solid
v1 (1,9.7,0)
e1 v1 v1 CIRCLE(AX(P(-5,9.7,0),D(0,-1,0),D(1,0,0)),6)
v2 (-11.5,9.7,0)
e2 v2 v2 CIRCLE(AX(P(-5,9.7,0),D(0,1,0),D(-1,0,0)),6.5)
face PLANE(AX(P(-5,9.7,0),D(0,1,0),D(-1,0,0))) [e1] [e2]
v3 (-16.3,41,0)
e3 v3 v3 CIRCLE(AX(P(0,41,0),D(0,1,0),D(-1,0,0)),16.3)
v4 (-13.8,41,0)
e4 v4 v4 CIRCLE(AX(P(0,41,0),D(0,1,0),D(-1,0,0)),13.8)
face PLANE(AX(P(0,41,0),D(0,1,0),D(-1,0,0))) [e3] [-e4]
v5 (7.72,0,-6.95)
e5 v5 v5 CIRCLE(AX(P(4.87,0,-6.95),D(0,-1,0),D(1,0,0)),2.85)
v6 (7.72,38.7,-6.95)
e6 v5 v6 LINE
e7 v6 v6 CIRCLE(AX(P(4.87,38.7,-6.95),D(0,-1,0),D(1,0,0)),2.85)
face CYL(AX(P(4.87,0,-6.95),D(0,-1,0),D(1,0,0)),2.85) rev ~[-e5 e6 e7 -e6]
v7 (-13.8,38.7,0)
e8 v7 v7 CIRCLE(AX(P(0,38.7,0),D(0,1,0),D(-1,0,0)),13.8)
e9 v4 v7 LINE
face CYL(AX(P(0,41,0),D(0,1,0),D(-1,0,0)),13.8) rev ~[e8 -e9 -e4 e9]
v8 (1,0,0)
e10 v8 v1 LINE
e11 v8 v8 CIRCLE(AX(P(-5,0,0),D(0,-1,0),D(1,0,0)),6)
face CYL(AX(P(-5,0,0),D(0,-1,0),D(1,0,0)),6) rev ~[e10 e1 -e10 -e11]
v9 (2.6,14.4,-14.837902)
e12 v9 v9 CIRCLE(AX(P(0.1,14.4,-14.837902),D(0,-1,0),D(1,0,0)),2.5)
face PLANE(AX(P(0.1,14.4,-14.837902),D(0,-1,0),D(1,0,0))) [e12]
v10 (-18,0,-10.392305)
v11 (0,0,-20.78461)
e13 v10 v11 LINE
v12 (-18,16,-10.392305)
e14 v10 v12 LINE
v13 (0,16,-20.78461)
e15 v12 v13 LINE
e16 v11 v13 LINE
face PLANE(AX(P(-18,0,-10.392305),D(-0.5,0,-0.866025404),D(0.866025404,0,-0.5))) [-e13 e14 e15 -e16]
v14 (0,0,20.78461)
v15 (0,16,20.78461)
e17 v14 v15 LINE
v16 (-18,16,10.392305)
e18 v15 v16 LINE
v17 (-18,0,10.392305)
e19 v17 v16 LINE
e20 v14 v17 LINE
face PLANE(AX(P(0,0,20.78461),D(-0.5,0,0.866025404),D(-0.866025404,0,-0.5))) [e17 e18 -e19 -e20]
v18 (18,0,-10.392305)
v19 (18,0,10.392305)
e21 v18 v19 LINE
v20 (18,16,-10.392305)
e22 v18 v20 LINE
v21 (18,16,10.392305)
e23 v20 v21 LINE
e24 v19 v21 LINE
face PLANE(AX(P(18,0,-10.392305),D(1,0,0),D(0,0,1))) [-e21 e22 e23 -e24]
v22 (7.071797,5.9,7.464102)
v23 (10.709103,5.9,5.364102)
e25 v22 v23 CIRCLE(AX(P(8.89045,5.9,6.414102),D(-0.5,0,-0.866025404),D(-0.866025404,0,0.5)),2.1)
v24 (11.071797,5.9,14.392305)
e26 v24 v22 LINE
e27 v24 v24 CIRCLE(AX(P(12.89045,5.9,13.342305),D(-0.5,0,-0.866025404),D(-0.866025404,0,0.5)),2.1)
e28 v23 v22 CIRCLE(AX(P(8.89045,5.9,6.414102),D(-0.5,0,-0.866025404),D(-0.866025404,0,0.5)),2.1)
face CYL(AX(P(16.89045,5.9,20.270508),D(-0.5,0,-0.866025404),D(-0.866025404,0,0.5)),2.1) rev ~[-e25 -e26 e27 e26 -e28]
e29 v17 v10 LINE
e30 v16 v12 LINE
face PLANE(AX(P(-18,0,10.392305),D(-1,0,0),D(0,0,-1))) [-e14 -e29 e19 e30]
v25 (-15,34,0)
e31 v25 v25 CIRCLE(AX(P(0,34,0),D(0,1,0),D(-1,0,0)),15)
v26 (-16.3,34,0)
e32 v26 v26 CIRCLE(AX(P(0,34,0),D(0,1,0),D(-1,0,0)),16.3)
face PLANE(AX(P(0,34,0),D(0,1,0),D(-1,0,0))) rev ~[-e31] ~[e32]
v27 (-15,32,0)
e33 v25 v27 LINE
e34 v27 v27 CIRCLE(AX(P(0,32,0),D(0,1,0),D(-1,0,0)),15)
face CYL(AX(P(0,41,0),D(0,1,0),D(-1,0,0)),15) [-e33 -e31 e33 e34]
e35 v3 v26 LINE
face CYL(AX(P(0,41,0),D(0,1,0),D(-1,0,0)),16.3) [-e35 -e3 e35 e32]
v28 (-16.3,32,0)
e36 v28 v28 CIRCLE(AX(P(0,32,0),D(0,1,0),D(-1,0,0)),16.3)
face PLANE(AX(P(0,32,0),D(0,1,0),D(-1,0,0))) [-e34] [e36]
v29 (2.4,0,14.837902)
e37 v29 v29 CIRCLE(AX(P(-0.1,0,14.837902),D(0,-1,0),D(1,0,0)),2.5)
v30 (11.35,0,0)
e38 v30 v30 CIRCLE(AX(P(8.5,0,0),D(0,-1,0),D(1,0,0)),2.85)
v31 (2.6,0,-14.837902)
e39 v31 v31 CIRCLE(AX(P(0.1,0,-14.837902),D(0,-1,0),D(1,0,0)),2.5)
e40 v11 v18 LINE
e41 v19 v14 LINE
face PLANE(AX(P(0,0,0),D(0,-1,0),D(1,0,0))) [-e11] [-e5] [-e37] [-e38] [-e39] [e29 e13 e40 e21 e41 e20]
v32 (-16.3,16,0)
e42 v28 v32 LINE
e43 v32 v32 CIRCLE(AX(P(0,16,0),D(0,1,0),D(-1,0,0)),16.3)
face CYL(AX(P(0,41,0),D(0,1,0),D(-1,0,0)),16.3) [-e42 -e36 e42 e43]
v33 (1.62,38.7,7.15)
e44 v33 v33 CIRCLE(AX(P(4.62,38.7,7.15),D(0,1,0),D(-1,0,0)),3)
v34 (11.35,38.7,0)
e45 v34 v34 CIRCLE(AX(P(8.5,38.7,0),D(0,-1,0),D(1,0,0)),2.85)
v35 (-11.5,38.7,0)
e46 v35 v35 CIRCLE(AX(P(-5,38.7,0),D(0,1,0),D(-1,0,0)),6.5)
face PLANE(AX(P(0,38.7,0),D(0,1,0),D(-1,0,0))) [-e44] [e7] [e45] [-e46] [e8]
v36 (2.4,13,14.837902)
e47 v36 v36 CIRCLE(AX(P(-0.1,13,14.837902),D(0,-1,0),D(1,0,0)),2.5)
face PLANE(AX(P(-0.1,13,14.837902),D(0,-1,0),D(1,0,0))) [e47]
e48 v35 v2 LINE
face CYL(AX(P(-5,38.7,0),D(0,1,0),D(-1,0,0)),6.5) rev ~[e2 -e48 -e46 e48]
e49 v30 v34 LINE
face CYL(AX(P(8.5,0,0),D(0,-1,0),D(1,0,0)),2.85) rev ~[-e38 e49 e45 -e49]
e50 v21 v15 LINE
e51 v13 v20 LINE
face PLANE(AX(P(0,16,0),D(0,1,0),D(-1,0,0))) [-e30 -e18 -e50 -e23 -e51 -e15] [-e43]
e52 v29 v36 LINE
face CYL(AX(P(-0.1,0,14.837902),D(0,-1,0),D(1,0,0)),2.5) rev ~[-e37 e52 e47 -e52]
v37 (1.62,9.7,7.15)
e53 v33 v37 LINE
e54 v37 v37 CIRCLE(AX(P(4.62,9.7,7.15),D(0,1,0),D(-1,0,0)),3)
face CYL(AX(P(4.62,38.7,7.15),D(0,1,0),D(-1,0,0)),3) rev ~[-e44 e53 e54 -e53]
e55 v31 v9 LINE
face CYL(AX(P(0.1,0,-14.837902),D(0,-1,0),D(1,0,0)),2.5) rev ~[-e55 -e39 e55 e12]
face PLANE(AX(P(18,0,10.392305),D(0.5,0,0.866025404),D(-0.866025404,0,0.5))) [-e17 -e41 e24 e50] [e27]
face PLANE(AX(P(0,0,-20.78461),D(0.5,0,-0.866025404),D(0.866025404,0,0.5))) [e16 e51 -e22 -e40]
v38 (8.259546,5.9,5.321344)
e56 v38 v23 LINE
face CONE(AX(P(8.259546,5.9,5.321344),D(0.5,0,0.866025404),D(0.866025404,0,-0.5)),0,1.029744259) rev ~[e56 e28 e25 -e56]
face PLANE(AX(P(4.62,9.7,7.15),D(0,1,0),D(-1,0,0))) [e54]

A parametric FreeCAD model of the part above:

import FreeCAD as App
import Part
import Sketcher

V = App.Vector
Q = App.Units.Quantity

doc = App.newDocument("Part")
body = doc.addObject("PartDesign::Body", "Body")

# Sketch on XZ plane
sketch1 = body.newObject("Sketcher::SketchObject", "Sketch")
sketch1.AttachmentSupport = (doc.getObject("XZ_Plane"), [""])
sketch1.MapMode = "FlatFace"
sketch1.addGeometry(Part.LineSegment(V(-18, -10.392305, 0), V(0, -20.78461, 0)), False)
sketch1.addGeometry(Part.LineSegment(V(0, -20.78461, 0), V(18, -10.392305, 0)), False)
sketch1.addGeometry(Part.LineSegment(V(18, -10.392305, 0), V(18, 10.392305, 0)), False)
sketch1.addGeometry(Part.LineSegment(V(18, 10.392305, 0), V(0, 20.78461, 0)), False)
sketch1.addGeometry(Part.LineSegment(V(0, 20.78461, 0), V(-18, 10.392305, 0)), False)
sketch1.addGeometry(Part.LineSegment(V(-18, 10.392305, 0), V(-18, -10.392305, 0)), False)
sketch1.addConstraint(Sketcher.Constraint("Coincident", 0, 2, 1, 1))
sketch1.addConstraint(Sketcher.Constraint("Coincident", 1, 2, 2, 1))
sketch1.addConstraint(Sketcher.Constraint("Coincident", 2, 2, 3, 1))
sketch1.addConstraint(Sketcher.Constraint("Coincident", 3, 2, 4, 1))
sketch1.addConstraint(Sketcher.Constraint("Coincident", 4, 2, 5, 1))
sketch1.addConstraint(Sketcher.Constraint("Coincident", 5, 2, 0, 1))
sketch1.addConstraint(Sketcher.Constraint("Vertical", 2))
sketch1.addConstraint(Sketcher.Constraint("Vertical", 5))
sketch1.addConstraint(Sketcher.Constraint("Symmetric", 0, 2, 3, 2, -1, 1))
sketch1.addConstraint(Sketcher.Constraint("Symmetric", 1, 2, 4, 2, -1, 1))
sketch1.addConstraint(Sketcher.Constraint("PointOnObject", 0, 2, -2))
sketch1.addConstraint(Sketcher.Constraint("Parallel", 0, 3))
sketch1.addConstraint(Sketcher.Constraint("Horizontal", 2, 2, 4, 2))
sketch1.addConstraint(Sketcher.Constraint("Angle", 0, Q("-30 deg")))
sketch1.addConstraint(Sketcher.Constraint("DistanceX", -1, 1, 1, 2, Q("18 mm")))
sketch1.addConstraint(Sketcher.Constraint("DistanceY", 2, 1, 2, 2, Q("20.78461 mm")))
pad1 = body.newObject("PartDesign::Pad", "Pad")
pad1.Profile = sketch1
pad1.Length = 41
pad1.Reversed = True

# Sketch on XZ plane
sketch2 = body.newObject("Sketcher::SketchObject", "Sketch001")
sketch2.AttachmentSupport = (doc.getObject("XZ_Plane"), [""])
sketch2.MapMode = "FlatFace"
sketch2.AttachmentOffset = App.Placement(V(0, 0, -41), App.Rotation())
sketch2.addGeometry(Part.Circle(V(0, 0, 0), V(0, 0, 1), 24.469235), False)
sketch2.addGeometry(Part.Circle(V(0, 0, 0), V(0, 0, 1), 16.3), False)
sketch2.addConstraint(Sketcher.Constraint("Coincident", 0, 3, -1, 1))
sketch2.addConstraint(Sketcher.Constraint("Coincident", 1, 3, -1, 1))
sketch2.addConstraint(Sketcher.Constraint("Diameter", 1, Q("32.6 mm")))
sketch2.addConstraint(Sketcher.Constraint("Diameter", 0, Q("48.93847 mm")))
pocket1 = body.newObject("PartDesign::Pocket", "Pocket")
pocket1.Profile = sketch2
pocket1.Length = 25
pocket1.Reversed = True

# Sketch on XZ plane
sketch3 = body.newObject("Sketcher::SketchObject", "Sketch002")
sketch3.AttachmentSupport = (doc.getObject("XZ_Plane"), [""])
sketch3.MapMode = "FlatFace"
sketch3.AttachmentOffset = App.Placement(V(0, 0, -41), App.Rotation())
sketch3.addGeometry(Part.Circle(V(0, 0, 0), V(0, 0, 1), 21.95312), False)
sketch3.addGeometry(Part.Circle(V(0, 0, 0), V(0, 0, 1), 15), False)
sketch3.addConstraint(Sketcher.Constraint("Coincident", 0, 3, -1, 1))
sketch3.addConstraint(Sketcher.Constraint("Coincident", 1, 3, -1, 1))
sketch3.addConstraint(Sketcher.Constraint("Diameter", 1, Q("30 mm")))
sketch3.addConstraint(Sketcher.Constraint("Diameter", 0, Q("43.906241 mm")))
pocket2 = body.newObject("PartDesign::Pocket", "Pocket001")
pocket2.Profile = sketch3
pocket2.Length = 9
pocket2.Reversed = True

# Sketch on XZ plane
sketch4 = body.newObject("Sketcher::SketchObject", "Sketch003")
sketch4.AttachmentSupport = (doc.getObject("XZ_Plane"), [""])
sketch4.MapMode = "FlatFace"
sketch4.AttachmentOffset = App.Placement(V(0, 0, -41), App.Rotation())
sketch4.addGeometry(Part.Circle(V(0, 0, 0), V(0, 0, 1), 16.3), False)
sketch4.addConstraint(Sketcher.Constraint("Coincident", 0, 3, -1, 1))
sketch4.addConstraint(Sketcher.Constraint("Diameter", 0, Q("32.6 mm")))
pad2 = body.newObject("PartDesign::Pad", "Pad001")
pad2.Profile = sketch4
pad2.Length = 7

# Sketch on XZ plane
sketch5 = body.newObject("Sketcher::SketchObject", "Sketch004")
sketch5.AttachmentSupport = (doc.getObject("XZ_Plane"), [""])
sketch5.MapMode = "FlatFace"
sketch5.addGeometry(Part.Circle(V(8.5, 0, 0), V(0, 0, 1), 2.85), False)
sketch5.addGeometry(Part.Circle(V(4.87, -6.95, 0), V(0, 0, 1), 2.85), False)
sketch5.addConstraint(Sketcher.Constraint("Equal", 0, 1))
sketch5.addConstraint(Sketcher.Constraint("PointOnObject", 0, 3, -1))
sketch5.addConstraint(Sketcher.Constraint("Diameter", 0, Q("5.7 mm")))
sketch5.addConstraint(Sketcher.Constraint("DistanceX", -1, 1, 0, 3, Q("8.5 mm")))
sketch5.addConstraint(Sketcher.Constraint("DistanceX", -1, 1, 1, 3, Q("4.87 mm")))
sketch5.addConstraint(Sketcher.Constraint("DistanceY", 1, 3, -1, 1, Q("6.95 mm")))
pocket3 = body.newObject("PartDesign::Pocket", "Pocket002")
pocket3.Profile = sketch5
pocket3.Type = "ThroughAll"

# Sketch on XZ plane
sketch6 = body.newObject("Sketcher::SketchObject", "Sketch005")
sketch6.AttachmentSupport = (doc.getObject("XZ_Plane"), [""])
sketch6.MapMode = "FlatFace"
sketch6.AttachmentOffset = App.Placement(V(0, 0, -41), App.Rotation())
sketch6.addGeometry(Part.Circle(V(0, 0, 0), V(0, 0, 1), 13.8), False)
sketch6.addConstraint(Sketcher.Constraint("Coincident", 0, 3, -1, 1))
sketch6.addConstraint(Sketcher.Constraint("Diameter", 0, Q("27.6 mm")))
pocket4 = body.newObject("PartDesign::Pocket", "Pocket003")
pocket4.Profile = sketch6
pocket4.Length = 2.3
pocket4.Reversed = True

# Sketch on XZ plane
sketch7 = body.newObject("Sketcher::SketchObject", "Sketch006")
sketch7.AttachmentSupport = (doc.getObject("XZ_Plane"), [""])
sketch7.MapMode = "FlatFace"
sketch7.addGeometry(Part.Circle(V(-5, 0, 0), V(0, 0, 1), 6), False)
sketch7.addConstraint(Sketcher.Constraint("PointOnObject", 0, 3, -1))
sketch7.addConstraint(Sketcher.Constraint("Diameter", 0, Q("12 mm")))
sketch7.addConstraint(Sketcher.Constraint("DistanceX", 0, 3, -1, 1, Q("5 mm")))
pocket5 = body.newObject("PartDesign::Pocket", "Pocket004")
pocket5.Profile = sketch7
pocket5.Type = "ThroughAll"

# Sketch on XZ plane
sketch8 = body.newObject("Sketcher::SketchObject", "Sketch007")
sketch8.AttachmentSupport = (doc.getObject("XZ_Plane"), [""])
sketch8.MapMode = "FlatFace"
sketch8.AttachmentOffset = App.Placement(V(0, 0, -38.7), App.Rotation())
sketch8.addGeometry(Part.Circle(V(-5, 0, 0), V(0, 0, 1), 6.5), False)
sketch8.addConstraint(Sketcher.Constraint("PointOnObject", 0, 3, -1))
sketch8.addConstraint(Sketcher.Constraint("Diameter", 0, Q("13 mm")))
sketch8.addConstraint(Sketcher.Constraint("DistanceX", 0, 3, -1, 1, Q("5 mm")))
pocket6 = body.newObject("PartDesign::Pocket", "Pocket005")
pocket6.Profile = sketch8
pocket6.Length = 29
pocket6.Reversed = True

# Sketch on XZ plane
sketch9 = body.newObject("Sketcher::SketchObject", "Sketch008")
sketch9.AttachmentSupport = (doc.getObject("XZ_Plane"), [""])
sketch9.MapMode = "FlatFace"
sketch9.addGeometry(Part.Circle(V(-0.1, 14.837902, 0), V(0, 0, 1), 2.5), False)
sketch9.addConstraint(Sketcher.Constraint("Diameter", 0, Q("5 mm")))
sketch9.addConstraint(Sketcher.Constraint("DistanceX", 0, 3, -1, 1, Q("0.1 mm")))
sketch9.addConstraint(Sketcher.Constraint("DistanceY", -1, 1, 0, 3, Q("14.837902 mm")))
pocket7 = body.newObject("PartDesign::Pocket", "Pocket006")
pocket7.Profile = sketch9
pocket7.Length = 13

# Sketch on XZ plane
sketch10 = body.newObject("Sketcher::SketchObject", "Sketch009")
sketch10.AttachmentSupport = (doc.getObject("XZ_Plane"), [""])
sketch10.MapMode = "FlatFace"
sketch10.addGeometry(Part.Circle(V(0.1, -14.837902, 0), V(0, 0, 1), 2.5), False)
sketch10.addConstraint(Sketcher.Constraint("Diameter", 0, Q("5 mm")))
sketch10.addConstraint(Sketcher.Constraint("DistanceX", -1, 1, 0, 3, Q("0.1 mm")))
sketch10.addConstraint(Sketcher.Constraint("DistanceY", 0, 3, -1, 1, Q("14.837902 mm")))
pocket8 = body.newObject("PartDesign::Pocket", "Pocket007")
pocket8.Profile = sketch10
pocket8.Length = 14.4

# Sketch on an angled plane
sketch11 = body.newObject("Sketcher::SketchObject", "Sketch010")
sketch11.Placement = App.Placement(V(9, 0, 15.588457), App.Rotation(V(0.866025404, 0, -0.5), V(0, 1, 0), V(0.5, 0, 0.866025404), "ZXY"))
sketch11.addGeometry(Part.Circle(V(4.492305, 5.9, 0), V(0, 0, 1), 2.1), False)
sketch11.addConstraint(Sketcher.Constraint("Diameter", 0, Q("4.2 mm")))
sketch11.addConstraint(Sketcher.Constraint("DistanceY", -1, 1, 0, 3, Q("5.9 mm")))
sketch11.addConstraint(Sketcher.Constraint("DistanceX", -1, 1, 0, 3, Q("4.492305 mm")))
doc.recompute()
hole = body.newObject("PartDesign::Hole", "Hole")
hole.Profile = sketch11
hole.ThreadType = "None"
hole.Diameter = 4.2
hole.DepthType = "Dimension"
hole.Depth = 8
hole.DrillPoint = "Angled"
hole.DrillPointAngle = 118

# Sketch on XZ plane
sketch12 = body.newObject("Sketcher::SketchObject", "Sketch011")
sketch12.AttachmentSupport = (doc.getObject("XZ_Plane"), [""])
sketch12.MapMode = "FlatFace"
sketch12.AttachmentOffset = App.Placement(V(0, 0, -38.7), App.Rotation())
sketch12.addGeometry(Part.Circle(V(4.62, 7.15, 0), V(0, 0, 1), 3), False)
sketch12.addConstraint(Sketcher.Constraint("Diameter", 0, Q("6 mm")))
sketch12.addConstraint(Sketcher.Constraint("DistanceX", -1, 1, 0, 3, Q("4.62 mm")))
sketch12.addConstraint(Sketcher.Constraint("DistanceY", -1, 1, 0, 3, Q("7.15 mm")))
pocket9 = body.newObject("PartDesign::Pocket", "Pocket008")
pocket9.Profile = sketch12
pocket9.Length = 29
pocket9.Reversed = True

doc.recompute()
